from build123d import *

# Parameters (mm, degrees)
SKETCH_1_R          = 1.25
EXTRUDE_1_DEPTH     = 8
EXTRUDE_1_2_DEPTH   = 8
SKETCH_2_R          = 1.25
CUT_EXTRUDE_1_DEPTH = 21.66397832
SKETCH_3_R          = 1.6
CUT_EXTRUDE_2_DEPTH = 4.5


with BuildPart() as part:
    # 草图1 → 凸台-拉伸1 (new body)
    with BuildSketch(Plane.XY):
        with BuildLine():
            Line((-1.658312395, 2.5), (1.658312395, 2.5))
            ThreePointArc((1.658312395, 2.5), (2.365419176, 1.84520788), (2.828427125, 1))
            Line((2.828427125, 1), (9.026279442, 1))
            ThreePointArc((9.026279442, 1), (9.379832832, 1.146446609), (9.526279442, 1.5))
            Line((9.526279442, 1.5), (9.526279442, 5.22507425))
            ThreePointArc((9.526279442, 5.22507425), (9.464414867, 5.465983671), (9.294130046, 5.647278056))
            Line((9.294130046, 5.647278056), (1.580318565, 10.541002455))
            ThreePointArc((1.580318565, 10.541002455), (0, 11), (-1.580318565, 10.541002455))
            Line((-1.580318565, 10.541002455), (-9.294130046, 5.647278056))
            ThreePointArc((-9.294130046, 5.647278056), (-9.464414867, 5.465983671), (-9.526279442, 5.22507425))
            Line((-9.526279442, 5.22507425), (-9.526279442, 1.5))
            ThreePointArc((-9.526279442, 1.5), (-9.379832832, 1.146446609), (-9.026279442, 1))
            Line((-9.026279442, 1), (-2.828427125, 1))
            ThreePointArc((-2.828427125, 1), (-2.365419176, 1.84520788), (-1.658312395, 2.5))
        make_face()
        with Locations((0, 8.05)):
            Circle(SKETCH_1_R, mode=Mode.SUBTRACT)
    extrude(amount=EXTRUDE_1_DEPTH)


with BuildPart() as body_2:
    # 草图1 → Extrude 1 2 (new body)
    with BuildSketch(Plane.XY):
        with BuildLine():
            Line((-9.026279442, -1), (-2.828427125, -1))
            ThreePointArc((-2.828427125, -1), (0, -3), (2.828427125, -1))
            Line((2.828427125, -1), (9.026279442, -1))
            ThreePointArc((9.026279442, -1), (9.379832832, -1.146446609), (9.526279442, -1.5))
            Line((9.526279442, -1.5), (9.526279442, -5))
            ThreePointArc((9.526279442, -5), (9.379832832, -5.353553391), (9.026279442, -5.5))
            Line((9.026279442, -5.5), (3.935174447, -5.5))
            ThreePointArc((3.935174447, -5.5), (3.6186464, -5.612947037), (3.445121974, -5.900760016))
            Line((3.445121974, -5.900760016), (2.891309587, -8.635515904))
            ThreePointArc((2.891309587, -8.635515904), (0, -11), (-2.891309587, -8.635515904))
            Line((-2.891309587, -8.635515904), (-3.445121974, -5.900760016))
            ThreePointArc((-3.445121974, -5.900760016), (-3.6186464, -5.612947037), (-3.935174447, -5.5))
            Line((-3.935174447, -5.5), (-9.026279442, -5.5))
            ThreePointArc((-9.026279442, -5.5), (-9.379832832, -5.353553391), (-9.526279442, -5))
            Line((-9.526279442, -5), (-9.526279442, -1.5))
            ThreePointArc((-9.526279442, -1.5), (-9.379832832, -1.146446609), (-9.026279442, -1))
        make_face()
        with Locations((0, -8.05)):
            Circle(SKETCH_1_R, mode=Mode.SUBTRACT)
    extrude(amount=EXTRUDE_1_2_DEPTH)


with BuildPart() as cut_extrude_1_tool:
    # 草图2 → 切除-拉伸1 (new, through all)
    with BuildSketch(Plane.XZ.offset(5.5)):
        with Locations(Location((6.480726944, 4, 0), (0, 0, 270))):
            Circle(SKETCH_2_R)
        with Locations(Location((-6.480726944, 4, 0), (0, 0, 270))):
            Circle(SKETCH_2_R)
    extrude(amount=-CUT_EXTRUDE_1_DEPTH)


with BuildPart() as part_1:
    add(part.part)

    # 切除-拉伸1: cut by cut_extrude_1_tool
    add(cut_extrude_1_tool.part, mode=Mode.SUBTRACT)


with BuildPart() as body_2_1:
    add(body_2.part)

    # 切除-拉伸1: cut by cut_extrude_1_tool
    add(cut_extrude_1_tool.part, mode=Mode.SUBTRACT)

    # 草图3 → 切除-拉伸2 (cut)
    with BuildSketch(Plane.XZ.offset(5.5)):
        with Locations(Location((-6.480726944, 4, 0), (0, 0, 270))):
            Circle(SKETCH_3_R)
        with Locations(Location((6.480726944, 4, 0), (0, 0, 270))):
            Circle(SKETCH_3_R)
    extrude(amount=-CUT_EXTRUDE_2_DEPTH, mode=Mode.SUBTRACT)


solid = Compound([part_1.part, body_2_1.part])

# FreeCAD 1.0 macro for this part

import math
import FreeCAD as App
import Part
import Sketcher
Q = App.Units.Quantity

doc = App.newDocument("Part")
params = doc.addObject("Spreadsheet::Sheet", "Params")
for row, (alias, value) in enumerate([
    ("sketch1_radius", "3 mm"),
    ("sketch1_diameter", "2.5 mm"),
    ("sketch1_radius2", "0.5 mm"),
    ("sketch1_radius3", "2.95 mm"),
    ("pad1_length", "8 mm"),
    ("sketch2_radius", "3 mm"),
    ("sketch2_diameter", "2.5 mm"),
    ("sketch2_radius2", "0.5 mm"),
    ("sketch2_radius3", "2.95 mm"),
    ("sketch2_height", "3.5 mm"),
    ("pad2_length", "8 mm"),
    ("sketch3_diameter", "2.5 mm"),
    ("pad3_length", "21.663978 mm"),
    ("sketch4_diameter", "3.2 mm"),
    ("pocket1_length", "4.5 mm"),
], start=1):
    params.set(f"A{row}", alias)
    params.set(f"B{row}", "=" + value)
    params.setAlias(f"B{row}", alias)

body = doc.addObject("PartDesign::Body", "Body")

# Sketch on XY plane
sketch1 = body.newObject("Sketcher::SketchObject", "Sketch")
sketch1.AttachmentSupport = (doc.getObject("XY_Plane"), [""])
sketch1.MapMode = "FlatFace"
sketch1.addGeometry(Part.LineSegment(App.Vector(-1.66, 2.5, 0), App.Vector(1.66, 2.5, 0)), False)
sketch1.addGeometry(Part.ArcOfCircle(Part.Circle(App.Vector(0, 0, 0), App.Vector(0, 0, 1), 3), math.radians(19), math.radians(56)), False)
sketch1.addGeometry(Part.LineSegment(App.Vector(2.83, 1, 0), App.Vector(9.03, 1, 0)), False)
sketch1.addGeometry(Part.ArcOfCircle(Part.Circle(App.Vector(9.03, 1.5, 0), App.Vector(0, 0, 1), 0.5), math.radians(-90), math.radians(0)), False)
sketch1.addGeometry(Part.LineSegment(App.Vector(9.53, 1.5, 0), App.Vector(9.53, 5.23, 0)), False)
sketch1.addGeometry(Part.ArcOfCircle(Part.Circle(App.Vector(9.03, 5.23, 0), App.Vector(0, 0, 1), 0.5), math.radians(0), math.radians(58)), False)
sketch1.addGeometry(Part.LineSegment(App.Vector(9.29, 5.65, 0), App.Vector(1.58, 10.54, 0)), False)
sketch1.addGeometry(Part.ArcOfCircle(Part.Circle(App.Vector(0, 8.05, 0), App.Vector(0, 0, 1), 2.95), math.radians(58), math.radians(122)), False)
sketch1.addGeometry(Part.LineSegment(App.Vector(-1.58, 10.54, 0), App.Vector(-9.29, 5.65, 0)), False)
sketch1.addGeometry(Part.ArcOfCircle(Part.Circle(App.Vector(-9.03, 5.23, 0), App.Vector(0, 0, 1), 0.5), math.radians(122), math.radians(180)), False)
sketch1.addGeometry(Part.LineSegment(App.Vector(-9.53, 5.23, 0), App.Vector(-9.53, 1.5, 0)), False)
sketch1.addGeometry(Part.ArcOfCircle(Part.Circle(App.Vector(-9.03, 1.5, 0), App.Vector(0, 0, 1), 0.5), math.radians(180), math.radians(270)), False)
sketch1.addGeometry(Part.LineSegment(App.Vector(-9.03, 1, 0), App.Vector(-2.83, 1, 0)), False)
sketch1.addGeometry(Part.ArcOfCircle(Part.Circle(App.Vector(0, 0, 0), App.Vector(0, 0, 1), 3), math.radians(124), math.radians(161)), False)
sketch1.addGeometry(Part.Circle(App.Vector(0, 8.05, 0), App.Vector(0, 0, 1), 1.25), False)
sketch1.addConstraint(Sketcher.Constraint("Coincident", 0, 2, 1, 2))
sketch1.addConstraint(Sketcher.Constraint("Coincident", 1, 1, 2, 1))
sketch1.addConstraint(Sketcher.Constraint("Tangent", 2, 2, 3, 1))
sketch1.addConstraint(Sketcher.Constraint("Tangent", 3, 2, 4, 1))
sketch1.addConstraint(Sketcher.Constraint("Tangent", 4, 2, 5, 1))
sketch1.addConstraint(Sketcher.Constraint("Tangent", 5, 2, 6, 1))
sketch1.addConstraint(Sketcher.Constraint("Tangent", 6, 2, 7, 1))
sketch1.addConstraint(Sketcher.Constraint("Tangent", 7, 2, 8, 1))
sketch1.addConstraint(Sketcher.Constraint("Tangent", 8, 2, 9, 1))
sketch1.addConstraint(Sketcher.Constraint("Tangent", 9, 2, 10, 1))
sketch1.addConstraint(Sketcher.Constraint("Tangent", 10, 2, 11, 1))
sketch1.addConstraint(Sketcher.Constraint("Tangent", 11, 2, 12, 1))
sketch1.addConstraint(Sketcher.Constraint("Coincident", 12, 2, 13, 2))
sketch1.addConstraint(Sketcher.Constraint("Coincident", 13, 1, 0, 1))
sketch1.addConstraint(Sketcher.Constraint("Horizontal", 0))
sketch1.addConstraint(Sketcher.Constraint("Horizontal", 2))
sketch1.addConstraint(Sketcher.Constraint("Vertical", 4))
sketch1.addConstraint(Sketcher.Constraint("Vertical", 10))
sketch1.addConstraint(Sketcher.Constraint("Horizontal", 12))
sketch1.addConstraint(Sketcher.Constraint("Coincident", 1, 3, -1, 1))
sketch1.addConstraint(Sketcher.Constraint("Coincident", 13, 3, -1, 1))
sketch1.addConstraint(Sketcher.Constraint("Coincident", 14, 3, 7, 3))
sketch1.addConstraint(Sketcher.Constraint("Equal", 3, 5))
sketch1.addConstraint(Sketcher.Constraint("Equal", 5, 9))
sketch1.addConstraint(Sketcher.Constraint("Equal", 9, 11))
sketch1.addConstraint(Sketcher.Constraint("Equal", 1, 13))
sketch1.addConstraint(Sketcher.Constraint("Symmetric", 5, 3, 9, 3, -2))
sketch1.addConstraint(Sketcher.Constraint("PointOnObject", 7, 3, -2))
sketch1.addConstraint(Sketcher.Constraint("Horizontal", 3, 3, 11, 3))
sketch1.addConstraint(Sketcher.Constraint("Radius", 1, Q("3 mm")))
sketch1.addConstraint(Sketcher.Constraint("Diameter", 14, Q("2.5 mm")))
sketch1.addConstraint(Sketcher.Constraint("Radius", 3, Q("0.5 mm")))
sketch1.addConstraint(Sketcher.Constraint("Radius", 7, Q("2.95 mm")))
sketch1.addConstraint(Sketcher.Constraint("DistanceY", -1, 1, 1, 1, Q("1 mm")))
sketch1.addConstraint(Sketcher.Constraint("DistanceY", 3, 3, 0, 2, Q("1 mm")))
sketch1.addConstraint(Sketcher.Constraint("DistanceY", -1, 1, 7, 3, Q("8.05 mm")))
sketch1.addConstraint(Sketcher.Constraint("DistanceX", 2, 1, 2, 2, Q("6.197852 mm")))
sketch1.addConstraint(Sketcher.Constraint("DistanceY", 4, 1, 4, 2, Q("3.725074 mm")))
sketch1.setExpression("Constraints[29]", "Params.sketch1_radius")
sketch1.setExpression("Constraints[30]", "Params.sketch1_diameter")
sketch1.setExpression("Constraints[31]", "Params.sketch1_radius2")
sketch1.setExpression("Constraints[32]", "Params.sketch1_radius3")
pad1 = body.newObject("PartDesign::Pad", "Pad")
pad1.Profile = sketch1
pad1.setExpression("Length", "Params.pad1_length")
body2 = doc.addObject("PartDesign::Body", "Body001")

# Sketch on XY plane
sketch2 = body2.newObject("Sketcher::SketchObject", "Sketch001")
sketch2.AttachmentSupport = (doc.getObject("XY_Plane001"), [""])
sketch2.MapMode = "FlatFace"
sketch2.addGeometry(Part.LineSegment(App.Vector(-2.83, -1, 0), App.Vector(-9.03, -1, 0)), False)
sketch2.addGeometry(Part.ArcOfCircle(Part.Circle(App.Vector(-9.03, -1.5, 0), App.Vector(0, 0, 1), 0.5), math.radians(90), math.radians(180)), False)
sketch2.addGeometry(Part.LineSegment(App.Vector(-9.53, -1.5, 0), App.Vector(-9.53, -5, 0)), False)
sketch2.addGeometry(Part.ArcOfCircle(Part.Circle(App.Vector(-9.03, -5, 0), App.Vector(0, 0, 1), 0.5), math.radians(180), math.radians(270)), False)
sketch2.addGeometry(Part.LineSegment(App.Vector(-9.03, -5.5, 0), App.Vector(-3.94, -5.5, 0)), False)
sketch2.addGeometry(Part.ArcOfCircle(Part.Circle(App.Vector(-3.94, -6, 0), App.Vector(0, 0, 1), 0.5), math.radians(11), math.radians(90)), False)
sketch2.addGeometry(Part.LineSegment(App.Vector(-3.45, -5.9, 0), App.Vector(-2.89, -8.64, 0)), False)
sketch2.addGeometry(Part.ArcOfCircle(Part.Circle(App.Vector(0, -8.05, 0), App.Vector(0, 0, 1), 2.95), math.radians(-169), math.radians(-11)), False)
sketch2.addGeometry(Part.LineSegment(App.Vector(2.89, -8.64, 0), App.Vector(3.45, -5.9, 0)), False)
sketch2.addGeometry(Part.ArcOfCircle(Part.Circle(App.Vector(3.94, -6, 0), App.Vector(0, 0, 1), 0.5), math.radians(90), math.radians(169)), False)
sketch2.addGeometry(Part.LineSegment(App.Vector(3.94, -5.5, 0), App.Vector(9.03, -5.5, 0)), False)
sketch2.addGeometry(Part.ArcOfCircle(Part.Circle(App.Vector(9.03, -5, 0), App.Vector(0, 0, 1), 0.5), math.radians(-90), math.radians(0)), False)
sketch2.addGeometry(Part.LineSegment(App.Vector(9.53, -5, 0), App.Vector(9.53, -1.5, 0)), False)
sketch2.addGeometry(Part.ArcOfCircle(Part.Circle(App.Vector(9.03, -1.5, 0), App.Vector(0, 0, 1), 0.5), math.radians(0), math.radians(90)), False)
sketch2.addGeometry(Part.LineSegment(App.Vector(9.03, -1, 0), App.Vector(2.83, -1, 0)), False)
sketch2.addGeometry(Part.ArcOfCircle(Part.Circle(App.Vector(0, 0, 0), App.Vector(0, 0, 1), 3), math.radians(-161), math.radians(-19)), False)
sketch2.addGeometry(Part.Circle(App.Vector(0, -8.05, 0), App.Vector(0, 0, 1), 1.25), False)
sketch2.addConstraint(Sketcher.Constraint("Tangent", 0, 2, 1, 1))
sketch2.addConstraint(Sketcher.Constraint("Tangent", 1, 2, 2, 1))
sketch2.addConstraint(Sketcher.Constraint("Tangent", 2, 2, 3, 1))
sketch2.addConstraint(Sketcher.Constraint("Tangent", 3, 2, 4, 1))
sketch2.addConstraint(Sketcher.Constraint("Tangent", 4, 2, 5, 2))
sketch2.addConstraint(Sketcher.Constraint("Tangent", 5, 1, 6, 1))
sketch2.addConstraint(Sketcher.Constraint("Tangent", 6, 2, 7, 1))
sketch2.addConstraint(Sketcher.Constraint("Tangent", 7, 2, 8, 1))
sketch2.addConstraint(Sketcher.Constraint("Tangent", 8, 2, 9, 2))
sketch2.addConstraint(Sketcher.Constraint("Tangent", 9, 1, 10, 1))
sketch2.addConstraint(Sketcher.Constraint("Tangent", 10, 2, 11, 1))
sketch2.addConstraint(Sketcher.Constraint("Tangent", 11, 2, 12, 1))
sketch2.addConstraint(Sketcher.Constraint("Tangent", 12, 2, 13, 1))
sketch2.addConstraint(Sketcher.Constraint("Tangent", 13, 2, 14, 1))
sketch2.addConstraint(Sketcher.Constraint("Coincident", 14, 2, 15, 2))
sketch2.addConstraint(Sketcher.Constraint("Coincident", 15, 1, 0, 1))
sketch2.addConstraint(Sketcher.Constraint("Horizontal", 0))
sketch2.addConstraint(Sketcher.Constraint("Vertical", 2))
sketch2.addConstraint(Sketcher.Constraint("Horizontal", 4))
sketch2.addConstraint(Sketcher.Constraint("Horizontal", 10))
sketch2.addConstraint(Sketcher.Constraint("Vertical", 12))
sketch2.addConstraint(Sketcher.Constraint("Horizontal", 14))
sketch2.addConstraint(Sketcher.Constraint("Coincident", 15, 3, -1, 1))
sketch2.addConstraint(Sketcher.Constraint("Coincident", 16, 3, 7, 3))
sketch2.addConstraint(Sketcher.Constraint("Equal", 1, 3))
sketch2.addConstraint(Sketcher.Constraint("Equal", 3, 5))
sketch2.addConstraint(Sketcher.Constraint("Equal", 5, 9))
sketch2.addConstraint(Sketcher.Constraint("Equal", 9, 11))
sketch2.addConstraint(Sketcher.Constraint("Equal", 11, 13))
sketch2.addConstraint(Sketcher.Constraint("Symmetric", 5, 3, 9, 3, -2))
sketch2.addConstraint(Sketcher.Constraint("Symmetric", 1, 3, 13, 3, -2))
sketch2.addConstraint(Sketcher.Constraint("PointOnObject", 7, 3, -2))
sketch2.addConstraint(Sketcher.Constraint("Radius", 15, Q("3 mm")))
sketch2.addConstraint(Sketcher.Constraint("Diameter", 16, Q("2.5 mm")))
sketch2.addConstraint(Sketcher.Constraint("Radius", 1, Q("0.5 mm")))
sketch2.addConstraint(Sketcher.Constraint("Radius", 7, Q("2.95 mm")))
sketch2.addConstraint(Sketcher.Constraint("DistanceY", 2, 2, 2, 1, Q("3.5 mm")))
sketch2.addConstraint(Sketcher.Constraint("DistanceY", 3, 3, -1, 1, Q("5 mm")))
sketch2.addConstraint(Sketcher.Constraint("DistanceY", 7, 3, -1, 1, Q("8.05 mm")))
sketch2.addConstraint(Sketcher.Constraint("Distance", 6, Q("2.790268 mm")))
sketch2.addConstraint(Sketcher.Constraint("DistanceX", 0, 2, 0, 1, Q("6.197852 mm")))
sketch2.setExpression("Constraints[32]", "Params.sketch2_radius")
sketch2.setExpression("Constraints[33]", "Params.sketch2_diameter")
sketch2.setExpression("Constraints[34]", "Params.sketch2_radius2")
sketch2.setExpression("Constraints[35]", "Params.sketch2_radius3")
sketch2.setExpression("Constraints[36]", "Params.sketch2_height")
pad2 = body2.newObject("PartDesign::Pad", "Pad001")
pad2.Profile = sketch2
pad2.setExpression("Length", "Params.pad2_length")
body3 = doc.addObject("PartDesign::Body", "Body002")
body3.AllowCompound = True

# Sketch on XZ plane
sketch3 = body3.newObject("Sketcher::SketchObject", "Sketch002")
sketch3.AttachmentSupport = (doc.getObject("XZ_Plane002"), [""])
sketch3.MapMode = "FlatFace"
sketch3.AttachmentOffset = App.Placement(App.Vector(0, 0, 5.5), App.Rotation())
sketch3.addGeometry(Part.Circle(App.Vector(6.5, 4, 0), App.Vector(0, 0, 1), 1.2), False)
sketch3.addGeometry(Part.Circle(App.Vector(-6.5, 4, 0), App.Vector(0, 0, 1), 1.2), False)
sketch3.addConstraint(Sketcher.Constraint("Equal", 0, 1))
sketch3.addConstraint(Sketcher.Constraint("Symmetric", 0, 3, 1, 3, -2))
sketch3.addConstraint(Sketcher.Constraint("Diameter", 0, Q("2.5 mm")))
sketch3.addConstraint(Sketcher.Constraint("DistanceY", -1, 1, 0, 3, Q("4 mm")))
sketch3.addConstraint(Sketcher.Constraint("DistanceX", -1, 1, 0, 3, Q("6.480727 mm")))
sketch3.setExpression("Constraints[2]", "Params.sketch3_diameter")
pad3 = body3.newObject("PartDesign::Pad", "Pad002")
pad3.Profile = sketch3
pad3.setExpression("Length", "Params.pad3_length")
pad3.Reversed = True
doc.recompute()

body4 = doc.addObject("PartDesign::Body", "Body003")
body4.BaseFeature = body3
boolean = body.newObject("PartDesign::Boolean", "Boolean")
boolean.Type = "Cut"
boolean.addObjects([body4])
doc.recompute()

boolean2 = body2.newObject("PartDesign::Boolean", "Boolean001")
boolean2.Type = "Cut"
boolean2.addObjects([body3])

# Sketch on XZ plane
sketch4 = body2.newObject("Sketcher::SketchObject", "Sketch003")
sketch4.AttachmentSupport = (doc.getObject("XZ_Plane001"), [""])
sketch4.MapMode = "FlatFace"
sketch4.AttachmentOffset = App.Placement(App.Vector(0, 0, 5.5), App.Rotation())
sketch4.addGeometry(Part.Circle(App.Vector(-6.5, 4, 0), App.Vector(0, 0, 1), 1.6), False)
sketch4.addGeometry(Part.Circle(App.Vector(6.5, 4, 0), App.Vector(0, 0, 1), 1.6), False)
sketch4.addConstraint(Sketcher.Constraint("Equal", 0, 1))
sketch4.addConstraint(Sketcher.Constraint("Symmetric", 0, 3, 1, 3, -2))
sketch4.addConstraint(Sketcher.Constraint("Diameter", 0, Q("3.2 mm")))
sketch4.addConstraint(Sketcher.Constraint("DistanceY", -1, 1, 0, 3, Q("4 mm")))
sketch4.addConstraint(Sketcher.Constraint("DistanceX", 0, 3, -1, 1, Q("6.480727 mm")))
sketch4.setExpression("Constraints[2]", "Params.sketch4_diameter")
pocket1 = body2.newObject("PartDesign::Pocket", "Pocket")
pocket1.Profile = sketch4
pocket1.setExpression("Length", "Params.pocket1_length")

doc.recompute()
